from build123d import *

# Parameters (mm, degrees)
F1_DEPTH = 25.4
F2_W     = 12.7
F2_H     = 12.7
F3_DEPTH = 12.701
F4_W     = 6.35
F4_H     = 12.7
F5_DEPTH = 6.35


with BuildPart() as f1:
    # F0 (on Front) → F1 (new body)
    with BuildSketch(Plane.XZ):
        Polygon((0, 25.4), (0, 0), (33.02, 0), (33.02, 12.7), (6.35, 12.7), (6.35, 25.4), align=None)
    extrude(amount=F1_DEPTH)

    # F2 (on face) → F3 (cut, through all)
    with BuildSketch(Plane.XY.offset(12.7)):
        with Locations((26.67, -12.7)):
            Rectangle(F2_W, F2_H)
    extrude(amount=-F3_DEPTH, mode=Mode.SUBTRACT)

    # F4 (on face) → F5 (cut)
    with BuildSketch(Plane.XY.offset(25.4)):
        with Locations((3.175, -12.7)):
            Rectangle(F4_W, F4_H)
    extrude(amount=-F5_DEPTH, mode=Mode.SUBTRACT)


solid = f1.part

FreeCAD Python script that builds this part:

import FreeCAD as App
import Part
import Sketcher
from FreeCAD import Vector
Q = App.Units.Quantity


def add_polygon(sketch, points):
    """Adds a closed chain of lines whose ends are joined by coincident constraints."""
    first, n = sketch.GeometryCount, len(points)
    for a, b in zip(points, points[1:] + points[:1]):
        sketch.addGeometry(Part.LineSegment(App.Vector(*a, 0), App.Vector(*b, 0)), False)
    for i in range(n):
        sketch.addConstraint(Sketcher.Constraint("Coincident", first + i, 2, first + (i + 1) % n, 1))

doc = App.newDocument("Part")
body = doc.addObject("PartDesign::Body", "Body")

# Sketch on XZ plane
sketch1 = body.newObject("Sketcher::SketchObject", "Sketch")
sketch1.AttachmentSupport = (doc.getObject("XZ_Plane"), [""])
sketch1.MapMode = "FlatFace"
add_polygon(sketch1, [(0, 25), (0, 0), (33, 0), (33, 13), (6, 13), (6, 25)])  # lines 0-5
sketch1.addConstraint(Sketcher.Constraint("Vertical", 0))
sketch1.addConstraint(Sketcher.Constraint("Horizontal", 1))
sketch1.addConstraint(Sketcher.Constraint("Vertical", 2))
sketch1.addConstraint(Sketcher.Constraint("Horizontal", 3))
sketch1.addConstraint(Sketcher.Constraint("Vertical", 4))
sketch1.addConstraint(Sketcher.Constraint("Horizontal", 5))
sketch1.addConstraint(Sketcher.Constraint("Coincident", 0, 2, -1, 1))
sketch1.addConstraint(Sketcher.Constraint("Equal", 2, 4))
sketch1.addConstraint(Sketcher.Constraint("DistanceY", 0, 2, 0, 1, Q("1 in")))
sketch1.addConstraint(Sketcher.Constraint("DistanceX", 1, 1, 1, 2, Q("1.3 in")))
sketch1.addConstraint(Sketcher.Constraint("DistanceX", 3, 2, 3, 1, Q("1.05 in")))
pad1 = body.newObject("PartDesign::Pad", "Pad")
pad1.Profile = sketch1
pad1.Length = Q("1 in")

# Sketch on XY plane
sketch2 = body.newObject("Sketcher::SketchObject", "Sketch001")
sketch2.AttachmentSupport = (doc.getObject("XY_Plane"), [""])
sketch2.MapMode = "FlatFace"
sketch2.AttachmentOffset = App.Placement(Vector(0, 0, 0.5 * 25.4), App.Rotation())
add_polygon(sketch2, [(20, -6), (20, -19), (33, -19), (33, -6)])  # lines 0-3
sketch2.addConstraint(Sketcher.Constraint("Vertical", 0))
sketch2.addConstraint(Sketcher.Constraint("Horizontal", 1))
sketch2.addConstraint(Sketcher.Constraint("Vertical", 2))
sketch2.addConstraint(Sketcher.Constraint("Horizontal", 3))
sketch2.addConstraint(Sketcher.Constraint("Equal", 3, 0))
sketch2.addConstraint(Sketcher.Constraint("DistanceX", 1, 1, 1, 2, Q("0.5 in")))
sketch2.addConstraint(Sketcher.Constraint("DistanceX", -1, 1, 0, 2, Q("0.8 in")))
sketch2.addConstraint(Sketcher.Constraint("DistanceY", 0, 2, -1, 1, Q("0.75 in")))
pocket1 = body.newObject("PartDesign::Pocket", "Pocket")
pocket1.Profile = sketch2
pocket1.Type = "ThroughAll"

# Sketch on XY plane
sketch3 = body.newObject("Sketcher::SketchObject", "Sketch002")
sketch3.AttachmentSupport = (doc.getObject("XY_Plane"), [""])
sketch3.MapMode = "FlatFace"
sketch3.AttachmentOffset = App.Placement(Vector(0, 0, 1 * 25.4), App.Rotation())
add_polygon(sketch3, [(0, -6), (0, -19), (6, -19), (6, -6)])  # lines 0-3
sketch3.addConstraint(Sketcher.Constraint("Vertical", 0))
sketch3.addConstraint(Sketcher.Constraint("Horizontal", 1))
sketch3.addConstraint(Sketcher.Constraint("Vertical", 2))
sketch3.addConstraint(Sketcher.Constraint("Horizontal", 3))
sketch3.addConstraint(Sketcher.Constraint("PointOnObject", 0, 2, -2))
sketch3.addConstraint(Sketcher.Constraint("DistanceY", 0, 2, 0, 1, Q("0.5 in")))
sketch3.addConstraint(Sketcher.Constraint("DistanceX", 1, 1, 1, 2, Q("0.25 in")))
sketch3.addConstraint(Sketcher.Constraint("DistanceY", 0, 2, -1, 1, Q("0.75 in")))
pocket2 = body.newObject("PartDesign::Pocket", "Pocket001")
pocket2.Profile = sketch3
pocket2.Length = Q("0.25 in")

doc.recompute()
